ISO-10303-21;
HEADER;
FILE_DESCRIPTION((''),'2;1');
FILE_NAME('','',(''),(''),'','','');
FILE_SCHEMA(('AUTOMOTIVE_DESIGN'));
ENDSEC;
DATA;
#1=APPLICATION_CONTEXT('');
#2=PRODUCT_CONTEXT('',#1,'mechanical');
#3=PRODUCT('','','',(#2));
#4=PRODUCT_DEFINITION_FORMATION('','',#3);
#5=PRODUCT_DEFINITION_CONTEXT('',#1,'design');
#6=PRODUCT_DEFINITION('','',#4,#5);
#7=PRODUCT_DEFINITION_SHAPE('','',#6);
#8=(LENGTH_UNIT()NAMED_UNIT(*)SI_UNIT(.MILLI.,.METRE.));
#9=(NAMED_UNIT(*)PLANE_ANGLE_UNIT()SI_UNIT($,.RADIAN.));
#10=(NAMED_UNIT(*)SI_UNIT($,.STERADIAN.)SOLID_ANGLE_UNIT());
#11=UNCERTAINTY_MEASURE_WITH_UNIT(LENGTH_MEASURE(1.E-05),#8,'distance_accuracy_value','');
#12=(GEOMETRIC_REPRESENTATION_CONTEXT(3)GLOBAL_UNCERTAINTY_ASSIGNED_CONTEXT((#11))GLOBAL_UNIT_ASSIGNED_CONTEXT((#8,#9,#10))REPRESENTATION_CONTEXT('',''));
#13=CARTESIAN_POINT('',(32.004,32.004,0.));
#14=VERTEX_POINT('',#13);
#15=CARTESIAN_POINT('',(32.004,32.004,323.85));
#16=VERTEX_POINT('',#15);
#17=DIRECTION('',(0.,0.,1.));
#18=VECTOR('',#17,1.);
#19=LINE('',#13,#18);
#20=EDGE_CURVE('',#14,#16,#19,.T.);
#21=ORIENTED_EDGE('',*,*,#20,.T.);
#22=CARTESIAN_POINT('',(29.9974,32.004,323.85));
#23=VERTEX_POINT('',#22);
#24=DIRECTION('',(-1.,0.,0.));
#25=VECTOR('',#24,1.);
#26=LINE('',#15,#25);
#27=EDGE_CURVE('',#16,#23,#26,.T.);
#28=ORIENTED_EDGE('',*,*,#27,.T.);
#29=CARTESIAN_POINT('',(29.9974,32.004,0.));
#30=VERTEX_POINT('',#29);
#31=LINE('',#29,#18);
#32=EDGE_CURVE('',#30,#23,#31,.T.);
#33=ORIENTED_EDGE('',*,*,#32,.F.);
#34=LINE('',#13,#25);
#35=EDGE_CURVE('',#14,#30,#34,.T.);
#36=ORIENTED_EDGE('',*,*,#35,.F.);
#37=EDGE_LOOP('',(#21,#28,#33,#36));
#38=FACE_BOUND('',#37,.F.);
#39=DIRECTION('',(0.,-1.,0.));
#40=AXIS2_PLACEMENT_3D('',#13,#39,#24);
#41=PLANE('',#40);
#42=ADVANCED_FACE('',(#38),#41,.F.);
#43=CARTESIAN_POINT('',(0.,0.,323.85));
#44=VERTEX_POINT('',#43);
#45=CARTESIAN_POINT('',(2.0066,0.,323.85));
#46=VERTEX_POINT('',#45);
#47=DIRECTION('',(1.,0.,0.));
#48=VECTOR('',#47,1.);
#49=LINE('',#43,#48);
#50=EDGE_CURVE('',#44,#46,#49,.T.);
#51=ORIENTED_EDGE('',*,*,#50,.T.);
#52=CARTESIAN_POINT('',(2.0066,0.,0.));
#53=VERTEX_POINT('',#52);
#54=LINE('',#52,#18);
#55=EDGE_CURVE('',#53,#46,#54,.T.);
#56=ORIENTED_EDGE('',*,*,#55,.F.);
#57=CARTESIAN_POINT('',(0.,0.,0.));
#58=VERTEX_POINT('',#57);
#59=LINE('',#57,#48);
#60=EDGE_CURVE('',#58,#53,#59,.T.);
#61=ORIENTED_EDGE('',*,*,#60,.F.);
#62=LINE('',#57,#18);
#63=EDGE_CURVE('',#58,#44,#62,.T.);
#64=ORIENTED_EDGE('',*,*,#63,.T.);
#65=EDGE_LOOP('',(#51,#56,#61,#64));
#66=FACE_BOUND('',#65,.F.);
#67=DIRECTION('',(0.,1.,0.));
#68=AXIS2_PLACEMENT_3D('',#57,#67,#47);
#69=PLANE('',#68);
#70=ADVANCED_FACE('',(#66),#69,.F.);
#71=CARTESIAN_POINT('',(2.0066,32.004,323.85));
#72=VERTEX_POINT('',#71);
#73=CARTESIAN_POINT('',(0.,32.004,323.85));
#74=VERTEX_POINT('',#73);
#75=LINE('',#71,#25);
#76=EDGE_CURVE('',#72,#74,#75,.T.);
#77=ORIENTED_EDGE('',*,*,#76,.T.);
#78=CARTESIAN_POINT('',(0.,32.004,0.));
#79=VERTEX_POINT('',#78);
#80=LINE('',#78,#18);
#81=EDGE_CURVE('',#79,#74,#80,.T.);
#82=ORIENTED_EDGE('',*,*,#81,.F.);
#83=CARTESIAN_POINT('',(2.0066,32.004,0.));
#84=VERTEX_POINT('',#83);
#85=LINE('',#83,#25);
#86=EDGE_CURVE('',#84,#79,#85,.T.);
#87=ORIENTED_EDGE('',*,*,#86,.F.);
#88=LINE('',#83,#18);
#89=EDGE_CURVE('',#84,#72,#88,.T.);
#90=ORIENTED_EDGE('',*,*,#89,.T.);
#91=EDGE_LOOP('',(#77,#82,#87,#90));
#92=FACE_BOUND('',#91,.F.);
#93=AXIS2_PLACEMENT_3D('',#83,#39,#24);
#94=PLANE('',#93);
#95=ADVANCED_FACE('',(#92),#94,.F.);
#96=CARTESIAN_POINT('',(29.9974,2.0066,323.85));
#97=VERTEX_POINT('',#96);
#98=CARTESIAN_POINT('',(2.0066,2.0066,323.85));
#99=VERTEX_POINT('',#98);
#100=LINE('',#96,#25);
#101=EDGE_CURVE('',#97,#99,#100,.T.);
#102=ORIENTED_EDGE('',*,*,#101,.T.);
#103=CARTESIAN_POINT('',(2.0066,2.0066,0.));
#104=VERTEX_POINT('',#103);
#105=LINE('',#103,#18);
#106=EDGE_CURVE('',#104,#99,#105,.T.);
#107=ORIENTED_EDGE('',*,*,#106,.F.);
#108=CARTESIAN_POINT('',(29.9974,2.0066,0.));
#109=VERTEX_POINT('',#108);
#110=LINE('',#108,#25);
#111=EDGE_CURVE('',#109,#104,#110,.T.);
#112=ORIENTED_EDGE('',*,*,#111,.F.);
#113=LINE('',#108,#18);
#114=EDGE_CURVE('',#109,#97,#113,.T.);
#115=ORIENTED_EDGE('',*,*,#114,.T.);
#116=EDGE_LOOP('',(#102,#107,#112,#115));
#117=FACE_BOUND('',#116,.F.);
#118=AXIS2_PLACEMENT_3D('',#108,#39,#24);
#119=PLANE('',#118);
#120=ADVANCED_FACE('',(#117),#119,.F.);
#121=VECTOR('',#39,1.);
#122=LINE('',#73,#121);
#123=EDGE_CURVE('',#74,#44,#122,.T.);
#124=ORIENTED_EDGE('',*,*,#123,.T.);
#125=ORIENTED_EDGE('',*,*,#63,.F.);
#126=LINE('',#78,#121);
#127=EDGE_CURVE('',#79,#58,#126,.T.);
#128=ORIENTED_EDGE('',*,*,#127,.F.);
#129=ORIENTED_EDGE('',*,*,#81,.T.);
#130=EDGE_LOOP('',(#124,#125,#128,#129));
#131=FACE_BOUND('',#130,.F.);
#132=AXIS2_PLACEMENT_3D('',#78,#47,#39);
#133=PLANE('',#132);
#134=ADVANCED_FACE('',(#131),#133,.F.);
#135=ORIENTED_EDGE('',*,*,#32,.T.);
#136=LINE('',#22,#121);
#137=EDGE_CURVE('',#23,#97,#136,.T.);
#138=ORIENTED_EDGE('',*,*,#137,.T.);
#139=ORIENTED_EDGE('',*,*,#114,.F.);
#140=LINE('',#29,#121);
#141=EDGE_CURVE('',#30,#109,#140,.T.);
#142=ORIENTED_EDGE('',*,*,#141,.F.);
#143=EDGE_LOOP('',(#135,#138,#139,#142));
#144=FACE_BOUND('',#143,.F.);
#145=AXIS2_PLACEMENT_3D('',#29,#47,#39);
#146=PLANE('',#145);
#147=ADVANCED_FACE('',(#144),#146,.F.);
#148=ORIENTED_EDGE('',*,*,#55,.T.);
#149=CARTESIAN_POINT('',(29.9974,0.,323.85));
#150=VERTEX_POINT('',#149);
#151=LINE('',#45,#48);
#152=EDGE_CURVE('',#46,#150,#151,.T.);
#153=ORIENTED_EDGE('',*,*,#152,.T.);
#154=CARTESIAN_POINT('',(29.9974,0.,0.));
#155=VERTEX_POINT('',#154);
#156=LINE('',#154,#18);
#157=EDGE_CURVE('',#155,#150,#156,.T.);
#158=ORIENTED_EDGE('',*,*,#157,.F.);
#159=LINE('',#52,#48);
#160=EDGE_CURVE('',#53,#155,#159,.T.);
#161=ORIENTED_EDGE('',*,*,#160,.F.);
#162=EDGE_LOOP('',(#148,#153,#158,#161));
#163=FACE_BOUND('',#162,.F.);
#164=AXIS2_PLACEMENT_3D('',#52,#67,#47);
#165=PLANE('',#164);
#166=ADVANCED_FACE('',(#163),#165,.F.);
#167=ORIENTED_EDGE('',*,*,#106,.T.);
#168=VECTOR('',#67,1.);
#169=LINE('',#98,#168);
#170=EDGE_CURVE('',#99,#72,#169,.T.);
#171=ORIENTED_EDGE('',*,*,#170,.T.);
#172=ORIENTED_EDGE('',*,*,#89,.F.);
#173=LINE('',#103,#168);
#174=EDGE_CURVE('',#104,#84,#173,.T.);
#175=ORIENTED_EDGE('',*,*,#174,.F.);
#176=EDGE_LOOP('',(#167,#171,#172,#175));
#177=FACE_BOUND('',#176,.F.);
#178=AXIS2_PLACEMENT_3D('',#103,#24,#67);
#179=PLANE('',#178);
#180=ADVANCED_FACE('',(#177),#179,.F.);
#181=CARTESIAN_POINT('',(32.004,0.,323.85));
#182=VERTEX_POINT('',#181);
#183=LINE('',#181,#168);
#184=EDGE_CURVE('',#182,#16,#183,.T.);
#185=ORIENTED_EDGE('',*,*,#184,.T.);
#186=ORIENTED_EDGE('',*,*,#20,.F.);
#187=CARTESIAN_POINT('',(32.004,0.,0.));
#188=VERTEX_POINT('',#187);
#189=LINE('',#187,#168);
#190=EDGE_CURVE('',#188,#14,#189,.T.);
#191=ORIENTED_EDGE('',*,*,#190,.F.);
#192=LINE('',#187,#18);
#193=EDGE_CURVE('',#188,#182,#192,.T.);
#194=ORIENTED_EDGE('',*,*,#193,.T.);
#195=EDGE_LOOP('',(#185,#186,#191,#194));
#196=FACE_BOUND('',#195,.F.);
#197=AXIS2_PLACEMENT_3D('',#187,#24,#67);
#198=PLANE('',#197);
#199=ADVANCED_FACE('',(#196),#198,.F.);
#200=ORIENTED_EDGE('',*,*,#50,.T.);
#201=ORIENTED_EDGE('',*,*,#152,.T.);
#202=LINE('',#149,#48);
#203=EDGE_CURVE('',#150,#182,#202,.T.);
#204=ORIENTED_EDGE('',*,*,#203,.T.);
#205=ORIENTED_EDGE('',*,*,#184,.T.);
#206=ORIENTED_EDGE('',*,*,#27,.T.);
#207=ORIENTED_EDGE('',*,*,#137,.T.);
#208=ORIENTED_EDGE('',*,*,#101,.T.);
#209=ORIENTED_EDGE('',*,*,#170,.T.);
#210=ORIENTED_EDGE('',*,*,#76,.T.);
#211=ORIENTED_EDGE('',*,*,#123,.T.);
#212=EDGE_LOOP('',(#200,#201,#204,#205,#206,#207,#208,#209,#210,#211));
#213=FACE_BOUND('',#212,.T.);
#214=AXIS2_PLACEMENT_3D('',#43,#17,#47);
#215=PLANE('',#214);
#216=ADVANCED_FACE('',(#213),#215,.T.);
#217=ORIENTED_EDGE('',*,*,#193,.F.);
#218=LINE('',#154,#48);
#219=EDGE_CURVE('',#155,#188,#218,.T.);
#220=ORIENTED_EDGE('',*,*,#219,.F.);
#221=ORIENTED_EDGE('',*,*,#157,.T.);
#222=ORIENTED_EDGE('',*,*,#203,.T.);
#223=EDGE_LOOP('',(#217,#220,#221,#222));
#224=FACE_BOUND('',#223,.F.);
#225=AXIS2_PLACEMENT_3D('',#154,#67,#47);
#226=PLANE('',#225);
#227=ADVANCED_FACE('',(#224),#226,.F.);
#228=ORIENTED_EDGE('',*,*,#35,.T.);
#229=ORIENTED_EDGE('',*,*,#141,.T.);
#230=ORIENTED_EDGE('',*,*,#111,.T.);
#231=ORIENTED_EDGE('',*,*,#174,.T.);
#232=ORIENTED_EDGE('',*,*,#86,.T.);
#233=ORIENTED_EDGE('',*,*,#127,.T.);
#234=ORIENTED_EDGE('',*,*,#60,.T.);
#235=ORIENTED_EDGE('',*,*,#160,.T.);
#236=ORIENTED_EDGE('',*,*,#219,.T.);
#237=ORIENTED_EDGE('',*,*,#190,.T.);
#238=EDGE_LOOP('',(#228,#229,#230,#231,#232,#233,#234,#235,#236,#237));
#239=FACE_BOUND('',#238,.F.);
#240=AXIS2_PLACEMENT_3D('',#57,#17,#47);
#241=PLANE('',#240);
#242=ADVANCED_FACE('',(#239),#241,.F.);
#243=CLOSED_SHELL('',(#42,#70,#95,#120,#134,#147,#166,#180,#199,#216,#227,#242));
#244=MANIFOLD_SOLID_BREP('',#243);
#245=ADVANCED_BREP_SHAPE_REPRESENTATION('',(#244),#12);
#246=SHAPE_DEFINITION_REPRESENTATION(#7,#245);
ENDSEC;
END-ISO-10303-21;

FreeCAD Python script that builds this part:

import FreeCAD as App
import Part
import Sketcher

V = App.Vector
Q = App.Units.Quantity


def add_polygon(sketch, points):
    """Adds a closed chain of lines whose ends are joined by coincident constraints."""
    first, n = sketch.GeometryCount, len(points)
    for a, b in zip(points, points[1:] + points[:1]):
        sketch.addGeometry(Part.LineSegment(App.Vector(*a, 0), App.Vector(*b, 0)), False)
    for i in range(n):
        sketch.addConstraint(Sketcher.Constraint("Coincident", first + i, 2, first + (i + 1) % n, 1))

doc = App.newDocument("Part")
body = doc.addObject("PartDesign::Body", "Body")

# Sketch on XY plane
sketch1 = body.newObject("Sketcher::SketchObject", "Sketch")
sketch1.AttachmentSupport = (doc.getObject("XY_Plane"), [""])
sketch1.MapMode = "FlatFace"
add_polygon(sketch1, [(2.0066, 2.0066), (2.0066, 32.004), (0, 32.004), (0, 0), (32.004, 0), (32.004, 32.004), (29.9974, 32.004), (29.9974, 2.0066)])  # lines 0-7
sketch1.addConstraint(Sketcher.Constraint("Vertical", 0))
sketch1.addConstraint(Sketcher.Constraint("Horizontal", 1))
sketch1.addConstraint(Sketcher.Constraint("Vertical", 2))
sketch1.addConstraint(Sketcher.Constraint("Horizontal", 3))
sketch1.addConstraint(Sketcher.Constraint("Vertical", 4))
sketch1.addConstraint(Sketcher.Constraint("Horizontal", 5))
sketch1.addConstraint(Sketcher.Constraint("Vertical", 6))
sketch1.addConstraint(Sketcher.Constraint("Horizontal", 7))
sketch1.addConstraint(Sketcher.Constraint("Coincident", 2, 2, -1, 1))
sketch1.addConstraint(Sketcher.Constraint("Horizontal", 1, 2, 4, 2))
sketch1.addConstraint(Sketcher.Constraint("Equal", 1, 5))
sketch1.addConstraint(Sketcher.Constraint("Equal", 3, 2))
sketch1.addConstraint(Sketcher.Constraint("DistanceX", 3, 1, 3, 2, Q("1.26 in")))
sketch1.addConstraint(Sketcher.Constraint("DistanceX", 1, 2, 1, 1, Q("0.079 in")))
sketch1.addConstraint(Sketcher.Constraint("DistanceY", -1, 1, 6, 2, Q("0.079 in")))
pad1 = body.newObject("PartDesign::Pad", "Pad")
pad1.Profile = sketch1
pad1.Length = Q("12.75 in")

doc.recompute()
